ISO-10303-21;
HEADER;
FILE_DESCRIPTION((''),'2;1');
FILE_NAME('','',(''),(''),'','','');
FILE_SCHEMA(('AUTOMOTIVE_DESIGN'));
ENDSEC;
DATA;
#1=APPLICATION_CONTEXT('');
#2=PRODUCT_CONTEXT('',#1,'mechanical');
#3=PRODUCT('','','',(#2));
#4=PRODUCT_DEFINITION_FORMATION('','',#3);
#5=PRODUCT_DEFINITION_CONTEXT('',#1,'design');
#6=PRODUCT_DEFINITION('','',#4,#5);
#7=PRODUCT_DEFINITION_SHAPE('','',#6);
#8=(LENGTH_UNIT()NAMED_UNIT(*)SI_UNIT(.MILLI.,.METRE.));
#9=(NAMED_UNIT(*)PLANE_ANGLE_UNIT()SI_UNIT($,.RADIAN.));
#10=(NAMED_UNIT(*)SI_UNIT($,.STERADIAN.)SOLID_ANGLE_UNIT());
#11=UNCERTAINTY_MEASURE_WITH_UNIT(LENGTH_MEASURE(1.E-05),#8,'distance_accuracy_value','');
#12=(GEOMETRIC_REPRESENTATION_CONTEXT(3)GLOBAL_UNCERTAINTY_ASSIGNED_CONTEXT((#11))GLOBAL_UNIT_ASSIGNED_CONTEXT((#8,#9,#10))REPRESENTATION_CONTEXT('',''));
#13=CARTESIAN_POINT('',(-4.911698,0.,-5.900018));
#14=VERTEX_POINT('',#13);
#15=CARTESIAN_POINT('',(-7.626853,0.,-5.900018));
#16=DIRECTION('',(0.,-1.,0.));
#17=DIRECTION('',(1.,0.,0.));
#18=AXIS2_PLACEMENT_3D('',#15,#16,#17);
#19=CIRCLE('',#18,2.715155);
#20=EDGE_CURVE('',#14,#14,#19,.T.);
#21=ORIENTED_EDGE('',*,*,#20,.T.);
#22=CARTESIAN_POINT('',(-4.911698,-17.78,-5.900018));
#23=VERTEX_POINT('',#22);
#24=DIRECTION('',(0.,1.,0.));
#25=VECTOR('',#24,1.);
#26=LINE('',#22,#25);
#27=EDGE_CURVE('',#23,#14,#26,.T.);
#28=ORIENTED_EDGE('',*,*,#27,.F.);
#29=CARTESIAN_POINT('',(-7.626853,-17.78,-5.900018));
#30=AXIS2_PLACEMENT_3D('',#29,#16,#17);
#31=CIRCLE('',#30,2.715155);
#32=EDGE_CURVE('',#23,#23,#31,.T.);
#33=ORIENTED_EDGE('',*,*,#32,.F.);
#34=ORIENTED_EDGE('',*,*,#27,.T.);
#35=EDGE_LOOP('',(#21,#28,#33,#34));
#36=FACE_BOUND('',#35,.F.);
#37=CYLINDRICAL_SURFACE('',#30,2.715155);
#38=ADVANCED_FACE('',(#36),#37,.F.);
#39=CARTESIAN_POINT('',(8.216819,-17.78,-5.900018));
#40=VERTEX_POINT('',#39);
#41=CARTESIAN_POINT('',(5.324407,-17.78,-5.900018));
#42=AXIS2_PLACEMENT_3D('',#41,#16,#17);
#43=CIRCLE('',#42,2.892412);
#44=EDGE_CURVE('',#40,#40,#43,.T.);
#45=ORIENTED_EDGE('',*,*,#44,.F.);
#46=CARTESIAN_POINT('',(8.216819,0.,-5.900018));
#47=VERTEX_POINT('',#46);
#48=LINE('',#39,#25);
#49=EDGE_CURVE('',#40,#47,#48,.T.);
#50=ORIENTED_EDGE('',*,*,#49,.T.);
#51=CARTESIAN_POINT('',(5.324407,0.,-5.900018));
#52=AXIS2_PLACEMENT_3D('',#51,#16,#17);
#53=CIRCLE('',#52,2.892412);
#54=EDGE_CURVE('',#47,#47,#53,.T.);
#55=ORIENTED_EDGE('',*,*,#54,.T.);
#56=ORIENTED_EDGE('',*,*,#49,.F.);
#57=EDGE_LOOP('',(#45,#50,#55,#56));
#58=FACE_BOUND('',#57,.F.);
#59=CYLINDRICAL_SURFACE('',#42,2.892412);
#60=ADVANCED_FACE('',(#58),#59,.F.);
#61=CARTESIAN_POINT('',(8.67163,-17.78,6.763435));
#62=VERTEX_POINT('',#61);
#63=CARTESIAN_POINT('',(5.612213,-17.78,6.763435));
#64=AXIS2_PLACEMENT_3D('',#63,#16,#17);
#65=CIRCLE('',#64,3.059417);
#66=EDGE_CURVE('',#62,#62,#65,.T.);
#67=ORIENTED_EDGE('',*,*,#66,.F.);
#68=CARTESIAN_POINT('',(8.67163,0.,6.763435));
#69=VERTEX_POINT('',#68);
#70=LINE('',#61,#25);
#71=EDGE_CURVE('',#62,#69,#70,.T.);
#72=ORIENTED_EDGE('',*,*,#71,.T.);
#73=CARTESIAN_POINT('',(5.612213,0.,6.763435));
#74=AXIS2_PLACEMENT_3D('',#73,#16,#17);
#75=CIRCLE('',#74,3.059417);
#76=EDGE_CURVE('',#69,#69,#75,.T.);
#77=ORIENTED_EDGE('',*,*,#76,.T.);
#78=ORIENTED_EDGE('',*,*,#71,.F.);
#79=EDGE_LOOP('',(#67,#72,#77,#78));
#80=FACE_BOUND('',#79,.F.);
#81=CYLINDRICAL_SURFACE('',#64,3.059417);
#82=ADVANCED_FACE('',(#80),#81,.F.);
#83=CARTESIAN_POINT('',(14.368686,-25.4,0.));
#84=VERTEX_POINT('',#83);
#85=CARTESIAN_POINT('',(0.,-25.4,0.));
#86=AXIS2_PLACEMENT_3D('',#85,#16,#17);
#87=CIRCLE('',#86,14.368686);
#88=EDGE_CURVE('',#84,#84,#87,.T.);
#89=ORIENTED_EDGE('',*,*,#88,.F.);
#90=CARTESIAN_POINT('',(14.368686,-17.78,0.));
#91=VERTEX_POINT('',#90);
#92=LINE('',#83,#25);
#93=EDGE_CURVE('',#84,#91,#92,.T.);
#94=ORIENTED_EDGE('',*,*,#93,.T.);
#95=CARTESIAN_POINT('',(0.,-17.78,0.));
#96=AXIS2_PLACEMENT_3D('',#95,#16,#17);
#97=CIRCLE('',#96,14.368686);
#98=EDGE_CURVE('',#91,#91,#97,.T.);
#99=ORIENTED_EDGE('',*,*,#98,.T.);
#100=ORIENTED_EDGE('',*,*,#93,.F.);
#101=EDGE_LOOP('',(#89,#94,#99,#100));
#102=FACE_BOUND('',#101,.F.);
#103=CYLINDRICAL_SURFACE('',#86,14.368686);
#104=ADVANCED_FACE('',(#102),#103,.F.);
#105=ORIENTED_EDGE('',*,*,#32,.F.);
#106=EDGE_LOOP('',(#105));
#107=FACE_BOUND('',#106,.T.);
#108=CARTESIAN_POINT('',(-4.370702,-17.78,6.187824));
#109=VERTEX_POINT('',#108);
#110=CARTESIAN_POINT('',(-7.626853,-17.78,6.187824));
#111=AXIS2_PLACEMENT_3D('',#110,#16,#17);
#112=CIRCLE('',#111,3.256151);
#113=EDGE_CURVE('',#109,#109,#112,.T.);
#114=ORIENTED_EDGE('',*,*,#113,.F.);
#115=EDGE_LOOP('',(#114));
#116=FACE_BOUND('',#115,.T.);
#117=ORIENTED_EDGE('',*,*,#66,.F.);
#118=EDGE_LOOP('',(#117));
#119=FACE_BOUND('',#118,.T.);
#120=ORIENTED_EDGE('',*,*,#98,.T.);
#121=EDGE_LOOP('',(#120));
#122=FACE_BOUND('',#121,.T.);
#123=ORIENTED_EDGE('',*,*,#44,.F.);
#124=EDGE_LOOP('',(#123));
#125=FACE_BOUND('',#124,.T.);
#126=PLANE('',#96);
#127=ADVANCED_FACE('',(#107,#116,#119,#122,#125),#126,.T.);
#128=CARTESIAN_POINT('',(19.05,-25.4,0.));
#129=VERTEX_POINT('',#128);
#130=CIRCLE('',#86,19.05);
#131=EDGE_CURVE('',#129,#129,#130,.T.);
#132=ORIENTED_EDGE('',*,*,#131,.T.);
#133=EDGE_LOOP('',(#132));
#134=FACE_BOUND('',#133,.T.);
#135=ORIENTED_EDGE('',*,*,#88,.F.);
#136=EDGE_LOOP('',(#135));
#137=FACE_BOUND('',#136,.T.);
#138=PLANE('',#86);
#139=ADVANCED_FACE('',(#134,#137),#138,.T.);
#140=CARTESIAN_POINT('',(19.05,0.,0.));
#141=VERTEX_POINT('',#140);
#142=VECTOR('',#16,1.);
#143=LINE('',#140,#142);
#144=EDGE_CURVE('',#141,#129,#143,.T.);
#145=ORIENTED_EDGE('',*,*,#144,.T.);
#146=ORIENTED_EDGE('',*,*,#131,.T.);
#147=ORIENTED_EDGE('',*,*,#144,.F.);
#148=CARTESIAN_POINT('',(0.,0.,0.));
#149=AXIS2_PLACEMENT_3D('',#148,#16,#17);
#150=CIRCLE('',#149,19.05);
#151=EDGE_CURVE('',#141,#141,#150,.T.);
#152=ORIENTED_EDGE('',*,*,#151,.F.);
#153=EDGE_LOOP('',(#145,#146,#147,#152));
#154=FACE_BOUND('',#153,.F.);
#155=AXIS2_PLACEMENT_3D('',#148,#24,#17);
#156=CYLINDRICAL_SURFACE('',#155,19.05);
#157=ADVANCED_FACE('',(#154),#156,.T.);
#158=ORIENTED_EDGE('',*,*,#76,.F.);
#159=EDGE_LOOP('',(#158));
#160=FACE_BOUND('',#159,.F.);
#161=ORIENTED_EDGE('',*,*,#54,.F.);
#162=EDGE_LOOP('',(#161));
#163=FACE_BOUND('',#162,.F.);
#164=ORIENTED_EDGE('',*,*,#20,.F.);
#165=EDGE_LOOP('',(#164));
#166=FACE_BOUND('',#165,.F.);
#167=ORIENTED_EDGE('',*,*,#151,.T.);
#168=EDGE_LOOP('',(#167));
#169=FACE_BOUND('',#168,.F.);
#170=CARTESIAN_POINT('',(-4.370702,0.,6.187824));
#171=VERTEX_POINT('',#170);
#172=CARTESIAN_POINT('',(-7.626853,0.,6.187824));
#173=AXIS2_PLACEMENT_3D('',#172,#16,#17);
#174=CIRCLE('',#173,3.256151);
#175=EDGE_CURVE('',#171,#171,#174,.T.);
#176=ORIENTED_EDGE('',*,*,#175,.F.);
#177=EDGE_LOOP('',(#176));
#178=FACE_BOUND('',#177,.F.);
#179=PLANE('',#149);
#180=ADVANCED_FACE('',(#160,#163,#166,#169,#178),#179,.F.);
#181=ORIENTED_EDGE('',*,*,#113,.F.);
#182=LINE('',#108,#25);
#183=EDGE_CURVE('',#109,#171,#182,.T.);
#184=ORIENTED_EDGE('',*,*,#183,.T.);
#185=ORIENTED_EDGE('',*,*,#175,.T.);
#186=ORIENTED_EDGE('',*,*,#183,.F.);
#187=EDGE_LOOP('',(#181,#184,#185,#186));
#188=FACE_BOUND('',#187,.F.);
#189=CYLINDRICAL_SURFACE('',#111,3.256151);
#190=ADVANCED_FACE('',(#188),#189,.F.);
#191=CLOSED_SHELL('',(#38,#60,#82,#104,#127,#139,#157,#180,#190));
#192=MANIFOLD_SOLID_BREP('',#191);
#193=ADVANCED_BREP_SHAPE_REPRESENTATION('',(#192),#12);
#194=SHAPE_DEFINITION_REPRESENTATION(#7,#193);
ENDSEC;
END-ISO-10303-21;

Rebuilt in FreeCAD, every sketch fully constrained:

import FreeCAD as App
import Part
import Sketcher
Q = App.Units.Quantity

doc = App.newDocument("Part")
body = doc.addObject("PartDesign::Body", "Body")

sketch1 = body.newObject("Sketcher::SketchObject", "Sketch")
sketch1.AttachmentSupport = (doc.getObject("XZ_Plane"), [""])
sketch1.MapMode = "FlatFace"
sketch1.addGeometry(Part.Circle(App.Vector(0, 0, 0), App.Vector(0, 0, 1), 19), False)
sketch1.addConstraint([
    Sketcher.Constraint("Coincident", 0, 3, -1, 1),
    Sketcher.Constraint("Diameter", 0, Q("1.5 in")),
])
pad1 = body.newObject("PartDesign::Pad", "Pad")
pad1.Profile = sketch1
pad1.Length = Q("1 in")

sketch2 = body.newObject("Sketcher::SketchObject", "Sketch001")
sketch2.AttachmentSupport = (doc.getObject("XZ_Plane"), [""])
sketch2.MapMode = "FlatFace"
sketch2.AttachmentOffset = App.Placement(App.Vector(0, 0, 1 * 25.4), App.Rotation())
sketch2.addGeometry(Part.Circle(App.Vector(0, 0, 0), App.Vector(0, 0, 1), 14), False)
sketch2.addConstraint([
    Sketcher.Constraint("Coincident", 0, 3, -1, 1),
    Sketcher.Constraint("Diameter", 0, Q("28.737372 mm")),
])
pocket1 = body.newObject("PartDesign::Pocket", "Pocket")
pocket1.Profile = sketch2
pocket1.Length = Q("0.3 in")

sketch3 = body.newObject("Sketcher::SketchObject", "Sketch002")
sketch3.AttachmentSupport = (doc.getObject("XZ_Plane"), [""])
sketch3.MapMode = "FlatFace"
sketch3.AttachmentOffset = App.Placement(App.Vector(0, 0, 0.7 * 25.4), App.Rotation())
sketch3.addGeometry([
    Part.Circle(App.Vector(-7.6, -5.9, 0), App.Vector(0, 0, 1), 2.7),
    Part.Circle(App.Vector(-7.6, 6.2, 0), App.Vector(0, 0, 1), 3.3),
    Part.Circle(App.Vector(5.6, 6.8, 0), App.Vector(0, 0, 1), 3.1),
    Part.Circle(App.Vector(5.3, -5.9, 0), App.Vector(0, 0, 1), 2.9),
], False)
sketch3.addConstraint([
    Sketcher.Constraint("Horizontal", 0, 3, 3, 3),
    Sketcher.Constraint("Vertical", 0, 3, 1, 3),
    Sketcher.Constraint("Diameter", 0, Q("5.43031 mm")),
    Sketcher.Constraint("Diameter", 1, Q("6.512302 mm")),
    Sketcher.Constraint("Diameter", 2, Q("6.118834 mm")),
    Sketcher.Constraint("Diameter", 3, Q("5.784824 mm")),
    Sketcher.Constraint("DistanceY", 0, 3, -1, 1, Q("5.900018 mm")),
    Sketcher.Constraint("DistanceY", 1, 3, 2, 3, Q("0.575611 mm")),
    Sketcher.Constraint("DistanceX", 0, 3, 3, 3, Q("12.95126 mm")),
    Sketcher.Constraint("DistanceX", 0, 3, -1, 1, Q("7.626853 mm")),
    Sketcher.Constraint("DistanceY", -1, 1, 1, 3, Q("6.187824 mm")),
    Sketcher.Constraint("DistanceX", -1, 1, 2, 3, Q("5.612213 mm")),
])
pocket2 = body.newObject("PartDesign::Pocket", "Pocket001")
pocket2.Profile = sketch3
pocket2.Type = "ThroughAll"

doc.recompute()
